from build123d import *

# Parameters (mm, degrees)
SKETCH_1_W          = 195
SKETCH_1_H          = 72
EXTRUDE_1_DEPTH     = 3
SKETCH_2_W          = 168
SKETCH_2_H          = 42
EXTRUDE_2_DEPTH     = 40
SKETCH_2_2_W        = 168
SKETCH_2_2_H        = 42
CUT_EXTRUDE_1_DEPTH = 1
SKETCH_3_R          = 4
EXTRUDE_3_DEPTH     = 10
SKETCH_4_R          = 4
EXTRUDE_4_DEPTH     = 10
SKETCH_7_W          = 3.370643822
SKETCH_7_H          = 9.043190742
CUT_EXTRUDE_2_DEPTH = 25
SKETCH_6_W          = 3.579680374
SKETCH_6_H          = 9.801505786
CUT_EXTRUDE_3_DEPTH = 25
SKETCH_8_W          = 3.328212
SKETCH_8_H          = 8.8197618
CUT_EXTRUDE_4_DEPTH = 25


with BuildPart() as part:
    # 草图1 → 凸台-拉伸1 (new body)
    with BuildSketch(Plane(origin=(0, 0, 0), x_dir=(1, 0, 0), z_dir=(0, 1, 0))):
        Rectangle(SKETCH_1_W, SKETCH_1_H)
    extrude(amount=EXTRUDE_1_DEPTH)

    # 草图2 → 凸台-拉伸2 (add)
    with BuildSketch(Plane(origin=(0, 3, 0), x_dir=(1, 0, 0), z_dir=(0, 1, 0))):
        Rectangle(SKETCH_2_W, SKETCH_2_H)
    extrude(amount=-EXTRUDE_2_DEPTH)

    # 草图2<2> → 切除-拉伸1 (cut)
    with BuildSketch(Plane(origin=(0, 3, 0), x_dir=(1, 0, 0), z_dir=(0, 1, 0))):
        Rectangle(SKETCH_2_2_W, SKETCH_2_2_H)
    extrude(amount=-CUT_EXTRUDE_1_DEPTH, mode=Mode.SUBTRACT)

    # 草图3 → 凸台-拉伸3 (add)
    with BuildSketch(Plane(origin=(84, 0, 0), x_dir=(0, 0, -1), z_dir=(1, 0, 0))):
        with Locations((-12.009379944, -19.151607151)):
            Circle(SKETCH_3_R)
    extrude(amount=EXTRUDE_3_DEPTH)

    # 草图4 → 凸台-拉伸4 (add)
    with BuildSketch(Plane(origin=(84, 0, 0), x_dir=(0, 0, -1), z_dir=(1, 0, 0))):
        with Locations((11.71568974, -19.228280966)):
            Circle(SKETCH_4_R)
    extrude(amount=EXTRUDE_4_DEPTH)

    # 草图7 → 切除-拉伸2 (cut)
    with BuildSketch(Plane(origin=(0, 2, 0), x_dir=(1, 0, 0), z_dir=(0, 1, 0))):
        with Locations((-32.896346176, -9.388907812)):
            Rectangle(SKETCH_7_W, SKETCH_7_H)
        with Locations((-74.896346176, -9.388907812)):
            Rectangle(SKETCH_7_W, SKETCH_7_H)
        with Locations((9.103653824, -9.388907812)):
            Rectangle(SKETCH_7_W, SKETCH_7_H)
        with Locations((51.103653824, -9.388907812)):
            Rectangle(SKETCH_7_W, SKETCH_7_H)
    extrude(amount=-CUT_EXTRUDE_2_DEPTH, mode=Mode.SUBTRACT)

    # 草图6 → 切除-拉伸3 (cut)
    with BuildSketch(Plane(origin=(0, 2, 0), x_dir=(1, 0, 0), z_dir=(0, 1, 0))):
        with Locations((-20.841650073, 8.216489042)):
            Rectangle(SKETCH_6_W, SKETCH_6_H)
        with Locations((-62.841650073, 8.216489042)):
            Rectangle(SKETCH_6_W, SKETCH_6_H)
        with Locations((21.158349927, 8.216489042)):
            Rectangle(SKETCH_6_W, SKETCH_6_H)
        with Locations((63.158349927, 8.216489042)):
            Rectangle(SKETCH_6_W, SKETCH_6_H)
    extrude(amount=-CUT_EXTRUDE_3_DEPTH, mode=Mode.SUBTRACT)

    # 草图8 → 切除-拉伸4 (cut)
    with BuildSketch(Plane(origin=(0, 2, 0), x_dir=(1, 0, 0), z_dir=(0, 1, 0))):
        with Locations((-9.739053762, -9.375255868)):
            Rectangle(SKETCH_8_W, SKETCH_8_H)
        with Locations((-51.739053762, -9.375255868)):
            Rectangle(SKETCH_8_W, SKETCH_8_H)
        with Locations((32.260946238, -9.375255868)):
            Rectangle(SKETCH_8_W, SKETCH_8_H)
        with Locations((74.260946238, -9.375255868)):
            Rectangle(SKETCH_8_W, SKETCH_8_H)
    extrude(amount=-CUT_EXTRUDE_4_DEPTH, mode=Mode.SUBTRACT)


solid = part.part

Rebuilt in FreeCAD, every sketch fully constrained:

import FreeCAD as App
import Part
import Sketcher


def add_polygon(sketch, points):
    """Adds a closed chain of lines whose ends are joined by coincident constraints."""
    first, n = sketch.GeometryCount, len(points)
    for a, b in zip(points, points[1:] + points[:1]):
        sketch.addGeometry(Part.LineSegment(App.Vector(*a, 0), App.Vector(*b, 0)), False)
    for i in range(n):
        sketch.addConstraint(Sketcher.Constraint("Coincident", first + i, 2, first + (i + 1) % n, 1))

doc = App.newDocument("Part")
body = doc.addObject("PartDesign::Body", "Body")

sketch1 = body.newObject("Sketcher::SketchObject", "Sketch")
sketch1.AttachmentSupport = (doc.getObject("XZ_Plane"), [""])
sketch1.MapMode = "FlatFace"
add_polygon(sketch1, [(-97.5, -36), (-97.5, 36), (97.5, 36), (97.5, -36)])
sketch1.addConstraint(Sketcher.Constraint("Vertical", 0))
sketch1.addConstraint(Sketcher.Constraint("Horizontal", 1))
sketch1.addConstraint(Sketcher.Constraint("Vertical", 2))
sketch1.addConstraint(Sketcher.Constraint("Horizontal", 3))
sketch1.addConstraint(Sketcher.Constraint("Symmetric", 0, 2, 2, 2, -1, 1))
sketch1.addConstraint(Sketcher.Constraint("DistanceX", 1, 1, 1, 2, 195.0))
sketch1.addConstraint(Sketcher.Constraint("DistanceY", 0, 1, 0, 2, 72.0))
pad1 = body.newObject("PartDesign::Pad", "Pad")
pad1.Profile = sketch1
pad1.Length = 3
pad1.Reversed = True

sketch2 = body.newObject("Sketcher::SketchObject", "Sketch001")
sketch2.AttachmentSupport = (doc.getObject("XZ_Plane"), [""])
sketch2.MapMode = "FlatFace"
sketch2.AttachmentOffset = App.Placement(App.Vector(0, 0, -3), App.Rotation())
add_polygon(sketch2, [(-84, -21), (-84, 21), (84, 21), (84, -21)])
sketch2.addConstraint(Sketcher.Constraint("Vertical", 0))
sketch2.addConstraint(Sketcher.Constraint("Horizontal", 1))
sketch2.addConstraint(Sketcher.Constraint("Vertical", 2))
sketch2.addConstraint(Sketcher.Constraint("Horizontal", 3))
sketch2.addConstraint(Sketcher.Constraint("Symmetric", 0, 2, 2, 2, -1, 1))
sketch2.addConstraint(Sketcher.Constraint("DistanceX", 1, 1, 1, 2, 168.0))
sketch2.addConstraint(Sketcher.Constraint("DistanceY", 0, 1, 0, 2, 42.0))
pad2 = body.newObject("PartDesign::Pad", "Pad001")
pad2.Profile = sketch2
pad2.Length = 40

sketch3 = body.newObject("Sketcher::SketchObject", "Sketch002")
sketch3.AttachmentSupport = (doc.getObject("XZ_Plane"), [""])
sketch3.MapMode = "FlatFace"
sketch3.AttachmentOffset = App.Placement(App.Vector(0, 0, -3), App.Rotation())
add_polygon(sketch3, [(-84, -21), (-84, 21), (84, 21), (84, -21)])
sketch3.addConstraint(Sketcher.Constraint("Vertical", 0))
sketch3.addConstraint(Sketcher.Constraint("Horizontal", 1))
sketch3.addConstraint(Sketcher.Constraint("Vertical", 2))
sketch3.addConstraint(Sketcher.Constraint("Horizontal", 3))
sketch3.addConstraint(Sketcher.Constraint("Symmetric", 0, 2, 2, 2, -1, 1))
sketch3.addConstraint(Sketcher.Constraint("DistanceX", 1, 1, 1, 2, 168.0))
sketch3.addConstraint(Sketcher.Constraint("DistanceY", 0, 1, 0, 2, 42.0))
pocket1 = body.newObject("PartDesign::Pocket", "Pocket")
pocket1.Profile = sketch3
pocket1.Length = 1
pocket1.Reversed = True

sketch4 = body.newObject("Sketcher::SketchObject", "Sketch003")
sketch4.AttachmentSupport = (doc.getObject("YZ_Plane"), [""])
sketch4.MapMode = "FlatFace"
sketch4.AttachmentOffset = App.Placement(App.Vector(0, 0, 84), App.Rotation())
sketch4.addGeometry(Part.Circle(App.Vector(-19.151607, 12.00938, 0), App.Vector(0, 0, 1), 4), False)
sketch4.addConstraint(Sketcher.Constraint("Diameter", 0, 8.0))
sketch4.addConstraint(Sketcher.Constraint("DistanceY", -1, 1, 0, 3, 12.00938))
sketch4.addConstraint(Sketcher.Constraint("DistanceX", 0, 3, -1, 1, 19.151607))
pad3 = body.newObject("PartDesign::Pad", "Pad002")
pad3.Profile = sketch4
pad3.Length = 10

sketch5 = body.newObject("Sketcher::SketchObject", "Sketch004")
sketch5.AttachmentSupport = (doc.getObject("YZ_Plane"), [""])
sketch5.MapMode = "FlatFace"
sketch5.AttachmentOffset = App.Placement(App.Vector(0, 0, 84), App.Rotation())
sketch5.addGeometry(Part.Circle(App.Vector(-19.228281, -11.71569, 0), App.Vector(0, 0, 1), 4), False)
sketch5.addConstraint(Sketcher.Constraint("Diameter", 0, 8.0))
sketch5.addConstraint(Sketcher.Constraint("DistanceX", 0, 3, -1, 1, 19.228281))
sketch5.addConstraint(Sketcher.Constraint("DistanceY", 0, 3, -1, 1, 11.71569))
pad4 = body.newObject("PartDesign::Pad", "Pad003")
pad4.Profile = sketch5
pad4.Length = 10

sketch6 = body.newObject("Sketcher::SketchObject", "Sketch005")
sketch6.AttachmentSupport = (doc.getObject("XZ_Plane"), [""])
sketch6.MapMode = "FlatFace"
sketch6.AttachmentOffset = App.Placement(App.Vector(0, 0, -2), App.Rotation())
add_polygon(sketch6, [(-34.581668, 4.867312), (-34.581668, 13.910503), (-31.211024, 13.910503), (-31.211024, 4.867312)])
add_polygon(sketch6, [(-76.581668, 4.867312), (-76.581668, 13.910503), (-73.211024, 13.910503), (-73.211024, 4.867312)])
add_polygon(sketch6, [(7.418332, 4.867312), (7.418332, 13.910503), (10.788976, 13.910503), (10.788976, 4.867312)])
add_polygon(sketch6, [(49.418332, 4.867312), (49.418332, 13.910503), (52.788976, 13.910503), (52.788976, 4.867312)])
sketch6.addConstraint(Sketcher.Constraint("Vertical", 0))
sketch6.addConstraint(Sketcher.Constraint("Horizontal", 1))
sketch6.addConstraint(Sketcher.Constraint("Vertical", 2))
sketch6.addConstraint(Sketcher.Constraint("Horizontal", 3))
sketch6.addConstraint(Sketcher.Constraint("Vertical", 4))
sketch6.addConstraint(Sketcher.Constraint("Horizontal", 5))
sketch6.addConstraint(Sketcher.Constraint("Vertical", 6))
sketch6.addConstraint(Sketcher.Constraint("Horizontal", 7))
sketch6.addConstraint(Sketcher.Constraint("Vertical", 8))
sketch6.addConstraint(Sketcher.Constraint("Horizontal", 9))
sketch6.addConstraint(Sketcher.Constraint("Vertical", 10))
sketch6.addConstraint(Sketcher.Constraint("Horizontal", 11))
sketch6.addConstraint(Sketcher.Constraint("Vertical", 12))
sketch6.addConstraint(Sketcher.Constraint("Horizontal", 13))
sketch6.addConstraint(Sketcher.Constraint("Vertical", 14))
sketch6.addConstraint(Sketcher.Constraint("Horizontal", 15))
sketch6.addConstraint(Sketcher.Constraint("Horizontal", 1, 2, 4, 2))
sketch6.addConstraint(Sketcher.Constraint("Horizontal", 3, 2, 6, 2))
sketch6.addConstraint(Sketcher.Constraint("Horizontal", 5, 2, 8, 2))
sketch6.addConstraint(Sketcher.Constraint("Horizontal", 7, 2, 10, 2))
sketch6.addConstraint(Sketcher.Constraint("Horizontal", 9, 2, 12, 2))
sketch6.addConstraint(Sketcher.Constraint("Horizontal", 11, 2, 14, 2))
sketch6.addConstraint(Sketcher.Constraint("Equal", 3, 5))
sketch6.addConstraint(Sketcher.Constraint("Equal", 7, 9))
sketch6.addConstraint(Sketcher.Constraint("Equal", 11, 13))
sketch6.addConstraint(Sketcher.Constraint("DistanceX", 4, 2, 0, 2, 42.0))
sketch6.addConstraint(Sketcher.Constraint("DistanceX", 0, 2, 8, 2, 42.0))
sketch6.addConstraint(Sketcher.Constraint("DistanceX", 8, 2, 12, 2, 42.0))
sketch6.addConstraint(Sketcher.Constraint("DistanceY", 0, 1, 0, 2, 9.043191))
sketch6.addConstraint(Sketcher.Constraint("DistanceX", 1, 1, 1, 2, 3.370644))
sketch6.addConstraint(Sketcher.Constraint("DistanceX", 0, 2, -1, 1, 34.581668))
sketch6.addConstraint(Sketcher.Constraint("DistanceY", -1, 1, 0, 2, 13.910503))
pocket2 = body.newObject("PartDesign::Pocket", "Pocket001")
pocket2.Profile = sketch6
pocket2.Length = 25
pocket2.Reversed = True

sketch7 = body.newObject("Sketcher::SketchObject", "Sketch006")
sketch7.AttachmentSupport = (doc.getObject("XZ_Plane"), [""])
sketch7.MapMode = "FlatFace"
sketch7.AttachmentOffset = App.Placement(App.Vector(0, 0, -2), App.Rotation())
add_polygon(sketch7, [(-22.63149, -13.117242), (-22.63149, -3.315736), (-19.05181, -3.315736), (-19.05181, -13.117242)])
add_polygon(sketch7, [(-64.63149, -13.117242), (-64.63149, -3.315736), (-61.05181, -3.315736), (-61.05181, -13.117242)])
add_polygon(sketch7, [(19.36851, -13.117242), (19.36851, -3.315736), (22.94819, -3.315736), (22.94819, -13.117242)])
add_polygon(sketch7, [(61.36851, -13.117242), (61.36851, -3.315736), (64.94819, -3.315736), (64.94819, -13.117242)])
sketch7.addConstraint(Sketcher.Constraint("Vertical", 0))
sketch7.addConstraint(Sketcher.Constraint("Horizontal", 1))
sketch7.addConstraint(Sketcher.Constraint("Vertical", 2))
sketch7.addConstraint(Sketcher.Constraint("Horizontal", 3))
sketch7.addConstraint(Sketcher.Constraint("Vertical", 4))
sketch7.addConstraint(Sketcher.Constraint("Horizontal", 5))
sketch7.addConstraint(Sketcher.Constraint("Vertical", 6))
sketch7.addConstraint(Sketcher.Constraint("Horizontal", 7))
sketch7.addConstraint(Sketcher.Constraint("Vertical", 8))
sketch7.addConstraint(Sketcher.Constraint("Horizontal", 9))
sketch7.addConstraint(Sketcher.Constraint("Vertical", 10))
sketch7.addConstraint(Sketcher.Constraint("Horizontal", 11))
sketch7.addConstraint(Sketcher.Constraint("Vertical", 12))
sketch7.addConstraint(Sketcher.Constraint("Horizontal", 13))
sketch7.addConstraint(Sketcher.Constraint("Vertical", 14))
sketch7.addConstraint(Sketcher.Constraint("Horizontal", 15))
sketch7.addConstraint(Sketcher.Constraint("Horizontal", 1, 2, 4, 2))
sketch7.addConstraint(Sketcher.Constraint("Horizontal", 3, 2, 6, 2))
sketch7.addConstraint(Sketcher.Constraint("Horizontal", 5, 2, 8, 2))
sketch7.addConstraint(Sketcher.Constraint("Horizontal", 7, 2, 10, 2))
sketch7.addConstraint(Sketcher.Constraint("Horizontal", 9, 2, 12, 2))
sketch7.addConstraint(Sketcher.Constraint("Horizontal", 11, 2, 14, 2))
sketch7.addConstraint(Sketcher.Constraint("Equal", 3, 5))
sketch7.addConstraint(Sketcher.Constraint("Equal", 7, 9))
sketch7.addConstraint(Sketcher.Constraint("Equal", 11, 13))
sketch7.addConstraint(Sketcher.Constraint("DistanceX", 4, 2, 0, 2, 42.0))
sketch7.addConstraint(Sketcher.Constraint("DistanceX", 0, 2, 8, 2, 42.0))
sketch7.addConstraint(Sketcher.Constraint("DistanceX", 8, 2, 12, 2, 42.0))
sketch7.addConstraint(Sketcher.Constraint("DistanceX", 1, 1, 1, 2, 3.57968))
sketch7.addConstraint(Sketcher.Constraint("DistanceY", 0, 1, 0, 2, 9.801506))
sketch7.addConstraint(Sketcher.Constraint("DistanceX", 0, 2, -1, 1, 22.63149))
sketch7.addConstraint(Sketcher.Constraint("DistanceY", 2, 2, -1, 1, 13.117242))
pocket3 = body.newObject("PartDesign::Pocket", "Pocket002")
pocket3.Profile = sketch7
pocket3.Length = 25
pocket3.Reversed = True

sketch8 = body.newObject("Sketcher::SketchObject", "Sketch007")
sketch8.AttachmentSupport = (doc.getObject("XZ_Plane"), [""])
sketch8.MapMode = "FlatFace"
sketch8.AttachmentOffset = App.Placement(App.Vector(0, 0, -2), App.Rotation())
add_polygon(sketch8, [(-11.40316, 4.965375), (-11.40316, 13.785137), (-8.074948, 13.785137), (-8.074948, 4.965375)])
add_polygon(sketch8, [(-53.40316, 4.965375), (-53.40316, 13.785137), (-50.074948, 13.785137), (-50.074948, 4.965375)])
add_polygon(sketch8, [(30.59684, 4.965375), (30.59684, 13.785137), (33.925052, 13.785137), (33.925052, 4.965375)])
add_polygon(sketch8, [(72.59684, 4.965375), (72.59684, 13.785137), (75.925052, 13.785137), (75.925052, 4.965375)])
sketch8.addConstraint(Sketcher.Constraint("Vertical", 0))
sketch8.addConstraint(Sketcher.Constraint("Horizontal", 1))
sketch8.addConstraint(Sketcher.Constraint("Vertical", 2))
sketch8.addConstraint(Sketcher.Constraint("Horizontal", 3))
sketch8.addConstraint(Sketcher.Constraint("Vertical", 4))
sketch8.addConstraint(Sketcher.Constraint("Horizontal", 5))
sketch8.addConstraint(Sketcher.Constraint("Vertical", 6))
sketch8.addConstraint(Sketcher.Constraint("Horizontal", 7))
sketch8.addConstraint(Sketcher.Constraint("Vertical", 8))
sketch8.addConstraint(Sketcher.Constraint("Horizontal", 9))
sketch8.addConstraint(Sketcher.Constraint("Vertical", 10))
sketch8.addConstraint(Sketcher.Constraint("Horizontal", 11))
sketch8.addConstraint(Sketcher.Constraint("Vertical", 12))
sketch8.addConstraint(Sketcher.Constraint("Horizontal", 13))
sketch8.addConstraint(Sketcher.Constraint("Vertical", 14))
sketch8.addConstraint(Sketcher.Constraint("Horizontal", 15))
sketch8.addConstraint(Sketcher.Constraint("Horizontal", 1, 2, 4, 2))
sketch8.addConstraint(Sketcher.Constraint("Horizontal", 3, 2, 6, 2))
sketch8.addConstraint(Sketcher.Constraint("Horizontal", 5, 2, 8, 2))
sketch8.addConstraint(Sketcher.Constraint("Horizontal", 7, 2, 10, 2))
sketch8.addConstraint(Sketcher.Constraint("Horizontal", 9, 2, 12, 2))
sketch8.addConstraint(Sketcher.Constraint("Horizontal", 11, 2, 14, 2))
sketch8.addConstraint(Sketcher.Constraint("Equal", 3, 5))
sketch8.addConstraint(Sketcher.Constraint("Equal", 7, 9))
sketch8.addConstraint(Sketcher.Constraint("Equal", 11, 13))
sketch8.addConstraint(Sketcher.Constraint("DistanceX", 4, 2, 0, 2, 42.0))
sketch8.addConstraint(Sketcher.Constraint("DistanceX", 0, 2, 8, 2, 42.0))
sketch8.addConstraint(Sketcher.Constraint("DistanceX", 8, 2, 12, 2, 42.0))
sketch8.addConstraint(Sketcher.Constraint("DistanceX", 1, 1, 1, 2, 3.328212))
sketch8.addConstraint(Sketcher.Constraint("DistanceY", 0, 1, 0, 2, 8.819762))
sketch8.addConstraint(Sketcher.Constraint("DistanceX", 0, 2, -1, 1, 11.40316))
sketch8.addConstraint(Sketcher.Constraint("DistanceY", -1, 1, 0, 2, 13.785137))
pocket4 = body.newObject("PartDesign::Pocket", "Pocket003")
pocket4.Profile = sketch8
pocket4.Length = 25
pocket4.Reversed = True

doc.recompute()
